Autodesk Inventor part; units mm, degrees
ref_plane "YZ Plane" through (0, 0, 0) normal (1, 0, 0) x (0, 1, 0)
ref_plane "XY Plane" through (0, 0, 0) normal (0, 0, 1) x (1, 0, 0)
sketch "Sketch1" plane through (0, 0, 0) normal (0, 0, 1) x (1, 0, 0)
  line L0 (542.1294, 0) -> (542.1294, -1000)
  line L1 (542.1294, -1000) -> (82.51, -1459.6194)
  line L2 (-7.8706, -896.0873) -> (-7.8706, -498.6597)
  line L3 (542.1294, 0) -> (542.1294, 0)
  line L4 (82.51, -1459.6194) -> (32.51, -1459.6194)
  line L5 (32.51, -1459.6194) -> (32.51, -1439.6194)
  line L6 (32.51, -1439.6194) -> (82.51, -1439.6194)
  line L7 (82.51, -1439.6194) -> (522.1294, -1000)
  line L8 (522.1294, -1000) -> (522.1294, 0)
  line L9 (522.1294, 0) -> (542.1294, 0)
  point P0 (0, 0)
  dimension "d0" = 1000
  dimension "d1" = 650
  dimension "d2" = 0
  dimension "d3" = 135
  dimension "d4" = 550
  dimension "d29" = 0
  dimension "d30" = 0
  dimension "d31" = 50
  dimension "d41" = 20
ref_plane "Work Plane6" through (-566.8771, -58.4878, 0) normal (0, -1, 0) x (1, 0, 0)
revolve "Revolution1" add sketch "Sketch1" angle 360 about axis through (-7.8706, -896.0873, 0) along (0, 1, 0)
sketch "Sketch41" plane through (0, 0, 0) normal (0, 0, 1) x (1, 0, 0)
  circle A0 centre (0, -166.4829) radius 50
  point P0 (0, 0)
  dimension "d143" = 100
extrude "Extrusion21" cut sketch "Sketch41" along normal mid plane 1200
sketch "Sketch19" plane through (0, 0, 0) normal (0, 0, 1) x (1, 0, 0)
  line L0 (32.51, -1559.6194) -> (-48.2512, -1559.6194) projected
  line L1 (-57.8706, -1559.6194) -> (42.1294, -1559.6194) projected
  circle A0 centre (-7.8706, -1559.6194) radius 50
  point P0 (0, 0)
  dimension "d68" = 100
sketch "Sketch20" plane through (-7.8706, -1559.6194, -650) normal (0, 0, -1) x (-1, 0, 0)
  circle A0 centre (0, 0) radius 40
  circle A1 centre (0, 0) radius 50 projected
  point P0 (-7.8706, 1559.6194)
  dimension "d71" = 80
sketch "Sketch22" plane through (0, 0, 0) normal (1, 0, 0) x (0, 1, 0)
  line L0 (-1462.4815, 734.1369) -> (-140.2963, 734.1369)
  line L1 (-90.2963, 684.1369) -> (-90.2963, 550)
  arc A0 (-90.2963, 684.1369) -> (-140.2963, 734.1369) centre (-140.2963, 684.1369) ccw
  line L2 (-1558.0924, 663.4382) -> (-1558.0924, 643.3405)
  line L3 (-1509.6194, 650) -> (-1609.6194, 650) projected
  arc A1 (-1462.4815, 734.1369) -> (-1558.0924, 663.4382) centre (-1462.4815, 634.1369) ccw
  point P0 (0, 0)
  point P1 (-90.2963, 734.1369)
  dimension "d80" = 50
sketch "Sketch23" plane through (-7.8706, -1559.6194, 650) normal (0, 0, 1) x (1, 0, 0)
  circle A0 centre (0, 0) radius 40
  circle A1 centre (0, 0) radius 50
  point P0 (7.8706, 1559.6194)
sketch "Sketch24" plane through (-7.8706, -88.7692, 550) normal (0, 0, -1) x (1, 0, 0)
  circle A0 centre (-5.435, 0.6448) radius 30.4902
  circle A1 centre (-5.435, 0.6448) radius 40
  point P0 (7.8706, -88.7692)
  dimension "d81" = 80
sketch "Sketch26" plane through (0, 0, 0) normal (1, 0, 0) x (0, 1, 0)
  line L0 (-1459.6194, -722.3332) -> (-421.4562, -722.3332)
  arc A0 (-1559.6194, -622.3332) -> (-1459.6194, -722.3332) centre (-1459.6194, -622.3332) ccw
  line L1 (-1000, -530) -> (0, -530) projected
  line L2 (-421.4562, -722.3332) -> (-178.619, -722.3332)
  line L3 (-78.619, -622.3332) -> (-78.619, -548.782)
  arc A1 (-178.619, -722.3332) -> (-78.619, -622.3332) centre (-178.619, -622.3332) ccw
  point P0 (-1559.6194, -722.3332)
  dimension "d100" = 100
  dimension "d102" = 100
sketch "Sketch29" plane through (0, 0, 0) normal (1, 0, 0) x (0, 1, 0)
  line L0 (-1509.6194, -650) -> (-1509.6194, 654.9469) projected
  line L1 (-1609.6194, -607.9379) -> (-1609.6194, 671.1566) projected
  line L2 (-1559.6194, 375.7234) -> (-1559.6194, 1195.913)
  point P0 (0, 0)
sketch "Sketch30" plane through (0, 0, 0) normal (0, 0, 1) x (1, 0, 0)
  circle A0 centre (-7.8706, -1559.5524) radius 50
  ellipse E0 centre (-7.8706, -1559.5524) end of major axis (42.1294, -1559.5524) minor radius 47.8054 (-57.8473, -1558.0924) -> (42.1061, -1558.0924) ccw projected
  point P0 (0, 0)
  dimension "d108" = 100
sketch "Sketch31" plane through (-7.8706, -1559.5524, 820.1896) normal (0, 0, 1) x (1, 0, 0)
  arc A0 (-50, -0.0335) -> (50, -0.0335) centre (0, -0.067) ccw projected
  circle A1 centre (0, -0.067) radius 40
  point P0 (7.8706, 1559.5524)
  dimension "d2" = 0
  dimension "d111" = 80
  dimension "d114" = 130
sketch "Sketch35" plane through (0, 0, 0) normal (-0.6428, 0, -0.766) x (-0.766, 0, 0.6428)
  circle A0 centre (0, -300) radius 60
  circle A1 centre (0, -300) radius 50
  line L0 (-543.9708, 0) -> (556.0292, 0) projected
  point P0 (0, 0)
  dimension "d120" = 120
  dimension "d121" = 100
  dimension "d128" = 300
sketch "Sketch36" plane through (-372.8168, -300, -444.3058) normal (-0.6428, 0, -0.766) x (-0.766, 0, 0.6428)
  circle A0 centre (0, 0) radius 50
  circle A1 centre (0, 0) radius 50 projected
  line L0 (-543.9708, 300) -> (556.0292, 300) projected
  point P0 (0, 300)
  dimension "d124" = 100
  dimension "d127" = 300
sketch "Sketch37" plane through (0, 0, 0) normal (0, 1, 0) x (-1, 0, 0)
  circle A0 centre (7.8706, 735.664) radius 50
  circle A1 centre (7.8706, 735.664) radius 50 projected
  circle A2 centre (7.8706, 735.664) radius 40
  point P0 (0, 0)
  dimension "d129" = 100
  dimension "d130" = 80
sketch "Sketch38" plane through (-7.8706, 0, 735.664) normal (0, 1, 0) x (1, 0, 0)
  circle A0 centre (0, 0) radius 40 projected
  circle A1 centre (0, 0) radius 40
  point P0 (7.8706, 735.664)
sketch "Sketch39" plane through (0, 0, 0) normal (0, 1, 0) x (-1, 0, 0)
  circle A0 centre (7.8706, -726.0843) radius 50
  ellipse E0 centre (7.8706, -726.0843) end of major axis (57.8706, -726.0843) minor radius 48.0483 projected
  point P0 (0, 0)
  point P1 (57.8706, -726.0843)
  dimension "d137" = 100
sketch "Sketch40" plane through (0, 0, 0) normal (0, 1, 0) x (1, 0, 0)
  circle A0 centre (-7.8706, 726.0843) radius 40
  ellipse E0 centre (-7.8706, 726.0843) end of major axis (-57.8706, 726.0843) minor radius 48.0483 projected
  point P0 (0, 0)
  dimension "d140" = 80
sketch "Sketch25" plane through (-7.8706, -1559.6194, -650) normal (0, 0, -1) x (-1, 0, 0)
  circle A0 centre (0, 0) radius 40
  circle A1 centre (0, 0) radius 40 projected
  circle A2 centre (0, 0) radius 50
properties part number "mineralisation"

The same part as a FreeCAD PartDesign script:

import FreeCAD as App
import Part
import Sketcher

doc = App.newDocument("Part")
body = doc.addObject("PartDesign::Body", "Body")

# Sketch on XY plane
sketch1 = body.newObject("Sketcher::SketchObject", "Sketch")
sketch1.AttachmentSupport = (doc.getObject("XY_Plane"), [""])
sketch1.MapMode = "FlatFace"
sketch1.addGeometry(Part.LineSegment(App.Vector(542, -1000, 0), App.Vector(542, 0, 0)), False)
sketch1.addGeometry(Part.LineSegment(App.Vector(542, 0, 0), App.Vector(522, 0, 0)), False)
sketch1.addGeometry(Part.LineSegment(App.Vector(522, 0, 0), App.Vector(522, -1000, 0)), False)
sketch1.addGeometry(Part.LineSegment(App.Vector(522, -1000, 0), App.Vector(83, -1440, 0)), False)
sketch1.addGeometry(Part.LineSegment(App.Vector(83, -1440, 0), App.Vector(33, -1440, 0)), False)
sketch1.addGeometry(Part.LineSegment(App.Vector(33, -1440, 0), App.Vector(33, -1460, 0)), False)
sketch1.addGeometry(Part.LineSegment(App.Vector(33, -1460, 0), App.Vector(83, -1460, 0)), False)
sketch1.addGeometry(Part.LineSegment(App.Vector(83, -1460, 0), App.Vector(542, -1000, 0)), False)
sketch1.addGeometry(Part.LineSegment(App.Vector(-8, -1460, 0), App.Vector(-8, 0, 0)), True)  # axis
sketch1.addConstraint(Sketcher.Constraint("Coincident", 0, 2, 1, 1))
sketch1.addConstraint(Sketcher.Constraint("Coincident", 1, 2, 2, 1))
sketch1.addConstraint(Sketcher.Constraint("Coincident", 2, 2, 3, 1))
sketch1.addConstraint(Sketcher.Constraint("Coincident", 3, 2, 4, 1))
sketch1.addConstraint(Sketcher.Constraint("Coincident", 4, 2, 5, 1))
sketch1.addConstraint(Sketcher.Constraint("Coincident", 5, 2, 6, 1))
sketch1.addConstraint(Sketcher.Constraint("Coincident", 6, 2, 7, 1))
sketch1.addConstraint(Sketcher.Constraint("Coincident", 7, 2, 0, 1))
sketch1.addConstraint(Sketcher.Constraint("Vertical", 0))
sketch1.addConstraint(Sketcher.Constraint("Horizontal", 1))
sketch1.addConstraint(Sketcher.Constraint("Vertical", 2))
sketch1.addConstraint(Sketcher.Constraint("Horizontal", 4))
sketch1.addConstraint(Sketcher.Constraint("Vertical", 5))
sketch1.addConstraint(Sketcher.Constraint("Horizontal", 6))
sketch1.addConstraint(Sketcher.Constraint("Vertical", 8))
sketch1.addConstraint(Sketcher.Constraint("PointOnObject", 0, 2, -1))
sketch1.addConstraint(Sketcher.Constraint("PointOnObject", 8, 2, -1))
sketch1.addConstraint(Sketcher.Constraint("Parallel", 3, 7))
sketch1.addConstraint(Sketcher.Constraint("Horizontal", 2, 2, 7, 2))
sketch1.addConstraint(Sketcher.Constraint("Horizontal", 6, 2, 8, 1))
sketch1.addConstraint(Sketcher.Constraint("Vertical", 3, 2, 6, 2))
sketch1.addConstraint(Sketcher.Constraint("Equal", 1, 5))
sketch1.addConstraint(Sketcher.Constraint("DistanceX", 1, 2, 1, 1, 20.0))
sketch1.addConstraint(Sketcher.Constraint("DistanceX", 4, 2, 4, 1, 50.0))
sketch1.addConstraint(Sketcher.Constraint("DistanceY", 0, 1, 0, 2, 1000.0))
sketch1.addConstraint(Sketcher.Constraint("Distance", 7, 650.0))
sketch1.addConstraint(Sketcher.Constraint("DistanceX", 8, 2, 0, 2, 550.0))
sketch1.addConstraint(Sketcher.Constraint("DistanceX", -1, 1, 3, 2, 82.51))
revolution = body.newObject("PartDesign::Revolution", "Revolution")
revolution.Profile = sketch1
revolution.ReferenceAxis = (sketch1, ["Axis0"])
revolution.Angle = 360

# Sketch on XY plane
sketch2 = body.newObject("Sketcher::SketchObject", "Sketch001")
sketch2.AttachmentSupport = (doc.getObject("XY_Plane"), [""])
sketch2.MapMode = "FlatFace"
sketch2.addGeometry(Part.Circle(App.Vector(0, -166, 0), App.Vector(0, 0, 1), 50), False)
sketch2.addConstraint(Sketcher.Constraint("PointOnObject", 0, 3, -2))
sketch2.addConstraint(Sketcher.Constraint("Diameter", 0, 100.0))
sketch2.addConstraint(Sketcher.Constraint("DistanceY", 0, 3, -1, 1, 166.483))
pocket1 = body.newObject("PartDesign::Pocket", "Pocket")
pocket1.Profile = sketch2
pocket1.Length = 1200
pocket1.Midplane = True

doc.recompute()
